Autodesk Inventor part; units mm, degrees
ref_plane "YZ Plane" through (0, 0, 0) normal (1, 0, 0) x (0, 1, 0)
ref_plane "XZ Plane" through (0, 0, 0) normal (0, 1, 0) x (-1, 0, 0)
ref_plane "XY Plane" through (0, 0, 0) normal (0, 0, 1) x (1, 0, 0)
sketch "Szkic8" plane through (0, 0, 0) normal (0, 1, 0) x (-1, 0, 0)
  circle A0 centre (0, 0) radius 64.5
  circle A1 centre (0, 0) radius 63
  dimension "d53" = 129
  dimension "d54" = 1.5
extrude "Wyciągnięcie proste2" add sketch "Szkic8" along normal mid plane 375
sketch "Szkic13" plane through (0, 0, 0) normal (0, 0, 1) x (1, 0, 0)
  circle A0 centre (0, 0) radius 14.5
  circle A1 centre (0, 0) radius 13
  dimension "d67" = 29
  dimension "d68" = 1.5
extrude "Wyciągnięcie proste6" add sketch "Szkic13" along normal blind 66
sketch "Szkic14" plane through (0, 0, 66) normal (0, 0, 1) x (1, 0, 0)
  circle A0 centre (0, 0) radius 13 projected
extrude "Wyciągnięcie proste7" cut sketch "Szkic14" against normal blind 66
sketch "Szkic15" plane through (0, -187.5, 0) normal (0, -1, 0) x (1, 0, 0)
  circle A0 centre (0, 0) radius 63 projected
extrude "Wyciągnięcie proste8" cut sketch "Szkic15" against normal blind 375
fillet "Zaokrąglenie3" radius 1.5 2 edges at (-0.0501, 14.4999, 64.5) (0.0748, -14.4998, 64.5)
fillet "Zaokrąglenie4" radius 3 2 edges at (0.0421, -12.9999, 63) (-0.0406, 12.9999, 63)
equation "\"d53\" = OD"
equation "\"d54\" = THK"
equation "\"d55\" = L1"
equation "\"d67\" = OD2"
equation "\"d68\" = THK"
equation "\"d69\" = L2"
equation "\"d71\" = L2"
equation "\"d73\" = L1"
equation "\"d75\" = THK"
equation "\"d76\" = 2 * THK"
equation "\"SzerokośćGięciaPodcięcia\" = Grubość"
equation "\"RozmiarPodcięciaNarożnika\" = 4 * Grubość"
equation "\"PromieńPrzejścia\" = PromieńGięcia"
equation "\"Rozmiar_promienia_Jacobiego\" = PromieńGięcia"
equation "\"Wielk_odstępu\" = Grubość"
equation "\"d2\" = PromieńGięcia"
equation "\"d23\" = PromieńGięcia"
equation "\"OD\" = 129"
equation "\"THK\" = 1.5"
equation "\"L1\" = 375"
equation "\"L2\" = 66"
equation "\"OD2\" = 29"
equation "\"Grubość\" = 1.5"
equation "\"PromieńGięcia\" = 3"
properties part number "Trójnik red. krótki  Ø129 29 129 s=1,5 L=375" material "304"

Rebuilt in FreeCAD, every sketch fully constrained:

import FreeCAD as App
import Part
import Sketcher


def edges_at(feature, points):
    """Names of the edges that pass closest to the given points."""
    edges = feature.Shape.Edges
    near = lambda p: min(range(len(edges)), key=lambda i: edges[i].distToShape(Part.Vertex(*p))[0])
    return sorted({f"Edge{near(p) + 1}" for p in points})

doc = App.newDocument("Part")
params = doc.addObject("Spreadsheet::Sheet", "Params")
for row, (alias, value) in enumerate([
    ("sketch1_diameter", "129 mm"),
    ("sketch1_diameter2", "126 mm"),
    ("pad1_length", "375 mm"),
    ("sketch2_diameter", "29 mm"),
    ("sketch2_diameter2", "26 mm"),
    ("pad2_length", "66 mm"),
    ("sketch3_diameter", "26 mm"),
    ("pocket1_length", "66 mm"),
    ("sketch4_diameter", "126 mm"),
    ("pocket2_length", "375 mm"),
    ("fillet_radius", "1.5 mm"),
    ("fillet2_radius", "3 mm"),
], start=1):
    params.set(f"A{row}", alias)
    params.set(f"B{row}", "=" + value)
    params.setAlias(f"B{row}", alias)

body = doc.addObject("PartDesign::Body", "Body")

# Sketch on XZ plane
sketch1 = doc.addObject("Sketcher::SketchObject", "Sketch")
body.addObject(sketch1)
sketch1.AttachmentSupport = (doc.XZ_Plane, [""])
sketch1.MapMode = "FlatFace"
sketch1.addGeometry(Part.Circle(App.Vector(0, 0, 0), App.Vector(0, 0, 1), 64.5), False)
sketch1.addGeometry(Part.Circle(App.Vector(0, 0, 0), App.Vector(0, 0, 1), 63), False)
sketch1.addConstraint(Sketcher.Constraint("Coincident", 0, 3, -1, 1))
sketch1.addConstraint(Sketcher.Constraint("Coincident", 1, 3, -1, 1))
sketch1.addConstraint(Sketcher.Constraint("Diameter", 0, 129.0))
sketch1.addConstraint(Sketcher.Constraint("Diameter", 1, 126.0))
sketch1.setExpression("Constraints[2]", "Params.sketch1_diameter")
sketch1.setExpression("Constraints[3]", "Params.sketch1_diameter2")
pad1 = doc.addObject("PartDesign::Pad", "Pad")
body.addObject(pad1)
pad1.Profile = sketch1
pad1.setExpression("Length", "Params.pad1_length")
pad1.Midplane = True

# Sketch on XY plane
sketch2 = doc.addObject("Sketcher::SketchObject", "Sketch001")
body.addObject(sketch2)
sketch2.AttachmentSupport = (doc.XY_Plane, [""])
sketch2.MapMode = "FlatFace"
sketch2.addGeometry(Part.Circle(App.Vector(0, 0, 0), App.Vector(0, 0, 1), 14.5), False)
sketch2.addGeometry(Part.Circle(App.Vector(0, 0, 0), App.Vector(0, 0, 1), 13), False)
sketch2.addConstraint(Sketcher.Constraint("Coincident", 0, 3, -1, 1))
sketch2.addConstraint(Sketcher.Constraint("Coincident", 1, 3, -1, 1))
sketch2.addConstraint(Sketcher.Constraint("Diameter", 0, 29.0))
sketch2.addConstraint(Sketcher.Constraint("Diameter", 1, 26.0))
sketch2.setExpression("Constraints[2]", "Params.sketch2_diameter")
sketch2.setExpression("Constraints[3]", "Params.sketch2_diameter2")
pad2 = doc.addObject("PartDesign::Pad", "Pad001")
body.addObject(pad2)
pad2.Profile = sketch2
pad2.setExpression("Length", "Params.pad2_length")

# Sketch on XY plane
sketch3 = doc.addObject("Sketcher::SketchObject", "Sketch002")
body.addObject(sketch3)
sketch3.AttachmentSupport = (doc.XY_Plane, [""])
sketch3.MapMode = "FlatFace"
sketch3.AttachmentOffset = App.Placement(App.Vector(0, 0, 66), App.Rotation())
sketch3.addGeometry(Part.Circle(App.Vector(0, 0, 0), App.Vector(0, 0, 1), 13), False)
sketch3.addConstraint(Sketcher.Constraint("Coincident", 0, 3, -1, 1))
sketch3.addConstraint(Sketcher.Constraint("Diameter", 0, 26.0))
sketch3.setExpression("Constraints[1]", "Params.sketch3_diameter")
pocket1 = doc.addObject("PartDesign::Pocket", "Pocket")
body.addObject(pocket1)
pocket1.Profile = sketch3
pocket1.setExpression("Length", "Params.pocket1_length")

# Sketch on XZ plane
sketch4 = doc.addObject("Sketcher::SketchObject", "Sketch003")
body.addObject(sketch4)
sketch4.AttachmentSupport = (doc.XZ_Plane, [""])
sketch4.MapMode = "FlatFace"
sketch4.AttachmentOffset = App.Placement(App.Vector(0, 0, 187.5), App.Rotation())
sketch4.addGeometry(Part.Circle(App.Vector(0, 0, 0), App.Vector(0, 0, 1), 63), False)
sketch4.addConstraint(Sketcher.Constraint("Coincident", 0, 3, -1, 1))
sketch4.addConstraint(Sketcher.Constraint("Diameter", 0, 126.0))
sketch4.setExpression("Constraints[1]", "Params.sketch4_diameter")
pocket2 = doc.addObject("PartDesign::Pocket", "Pocket001")
body.addObject(pocket2)
pocket2.Profile = sketch4
pocket2.setExpression("Length", "Params.pocket2_length")
doc.recompute()

fillet = doc.addObject("PartDesign::Fillet", "Fillet")
body.addObject(fillet)
fillet.Base = (pocket2, edges_at(pocket2, [(-0.05, 14.5, 64.5), (0.075, -14.5, 64.5)]))
fillet.setExpression("Radius", "Params.fillet_radius")
doc.recompute()

fillet2 = doc.addObject("PartDesign::Fillet", "Fillet001")
body.addObject(fillet2)
fillet2.Base = (fillet, edges_at(fillet, [(0.042, -13, 63), (-0.041, 13, 63)]))
fillet2.setExpression("Radius", "Params.fillet2_radius")

doc.recompute()
